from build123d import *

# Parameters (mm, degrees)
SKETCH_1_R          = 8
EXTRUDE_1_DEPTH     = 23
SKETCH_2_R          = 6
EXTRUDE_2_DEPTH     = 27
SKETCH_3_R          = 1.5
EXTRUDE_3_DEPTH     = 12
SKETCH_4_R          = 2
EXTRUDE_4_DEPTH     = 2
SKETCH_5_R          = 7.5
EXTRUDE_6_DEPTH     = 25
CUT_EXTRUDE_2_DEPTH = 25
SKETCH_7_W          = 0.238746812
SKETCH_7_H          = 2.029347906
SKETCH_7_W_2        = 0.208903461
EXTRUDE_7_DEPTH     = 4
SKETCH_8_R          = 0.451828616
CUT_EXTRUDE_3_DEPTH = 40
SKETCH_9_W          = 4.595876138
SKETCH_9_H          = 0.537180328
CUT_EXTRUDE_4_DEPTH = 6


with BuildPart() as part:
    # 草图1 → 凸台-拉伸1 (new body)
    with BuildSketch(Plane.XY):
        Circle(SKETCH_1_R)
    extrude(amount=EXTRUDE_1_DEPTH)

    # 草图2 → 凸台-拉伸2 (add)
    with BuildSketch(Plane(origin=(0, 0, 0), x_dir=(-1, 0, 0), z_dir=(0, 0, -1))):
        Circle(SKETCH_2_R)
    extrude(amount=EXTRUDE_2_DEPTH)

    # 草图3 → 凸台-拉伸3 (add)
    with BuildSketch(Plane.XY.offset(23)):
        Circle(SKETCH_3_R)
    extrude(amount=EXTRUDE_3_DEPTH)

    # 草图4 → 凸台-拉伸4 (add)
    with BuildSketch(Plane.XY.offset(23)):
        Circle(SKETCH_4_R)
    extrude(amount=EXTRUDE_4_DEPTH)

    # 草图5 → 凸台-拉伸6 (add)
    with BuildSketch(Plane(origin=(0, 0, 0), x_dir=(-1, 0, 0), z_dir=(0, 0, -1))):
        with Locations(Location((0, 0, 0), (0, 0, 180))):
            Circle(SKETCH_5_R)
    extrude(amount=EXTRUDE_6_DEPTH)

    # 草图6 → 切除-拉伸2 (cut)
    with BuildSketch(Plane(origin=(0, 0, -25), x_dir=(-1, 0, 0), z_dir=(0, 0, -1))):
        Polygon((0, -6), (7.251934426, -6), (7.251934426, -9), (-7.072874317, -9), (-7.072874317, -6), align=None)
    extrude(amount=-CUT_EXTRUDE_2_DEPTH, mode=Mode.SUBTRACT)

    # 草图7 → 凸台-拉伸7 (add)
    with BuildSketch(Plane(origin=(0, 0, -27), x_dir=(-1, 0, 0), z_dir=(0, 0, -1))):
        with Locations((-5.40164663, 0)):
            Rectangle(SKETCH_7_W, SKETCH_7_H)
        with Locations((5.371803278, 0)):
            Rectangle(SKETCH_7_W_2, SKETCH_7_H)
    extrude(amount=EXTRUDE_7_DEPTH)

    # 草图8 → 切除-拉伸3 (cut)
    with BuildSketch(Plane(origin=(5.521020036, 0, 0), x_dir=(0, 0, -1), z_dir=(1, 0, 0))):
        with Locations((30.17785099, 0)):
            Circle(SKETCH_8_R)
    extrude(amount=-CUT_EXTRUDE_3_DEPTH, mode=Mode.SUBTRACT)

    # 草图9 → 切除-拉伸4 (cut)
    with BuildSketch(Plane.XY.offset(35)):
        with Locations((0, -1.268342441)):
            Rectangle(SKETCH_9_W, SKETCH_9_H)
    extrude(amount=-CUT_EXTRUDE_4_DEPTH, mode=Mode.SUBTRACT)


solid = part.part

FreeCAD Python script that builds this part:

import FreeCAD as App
import Part
import Sketcher

V = App.Vector
Q = App.Units.Quantity


def add_polygon(sketch, points):
    """Adds a closed chain of lines whose ends are joined by coincident constraints."""
    first, n = sketch.GeometryCount, len(points)
    for a, b in zip(points, points[1:] + points[:1]):
        sketch.addGeometry(Part.LineSegment(App.Vector(*a, 0), App.Vector(*b, 0)), False)
    for i in range(n):
        sketch.addConstraint(Sketcher.Constraint("Coincident", first + i, 2, first + (i + 1) % n, 1))

doc = App.newDocument("Part")
body = doc.addObject("PartDesign::Body", "Body")

# Sketch on XY plane
sketch1 = doc.addObject("Sketcher::SketchObject", "Sketch")
body.addObject(sketch1)
sketch1.AttachmentSupport = (doc.XY_Plane, [""])
sketch1.MapMode = "FlatFace"
sketch1.addGeometry(Part.Circle(V(0, 0, 0), V(0, 0, 1), 8), False)
sketch1.addConstraint(Sketcher.Constraint("Coincident", 0, 3, -1, 1))
sketch1.addConstraint(Sketcher.Constraint("Diameter", 0, Q("16 mm")))
pad1 = doc.addObject("PartDesign::Pad", "Pad")
body.addObject(pad1)
pad1.Profile = sketch1
pad1.Length = 23

# Sketch on XY plane
sketch2 = doc.addObject("Sketcher::SketchObject", "Sketch001")
body.addObject(sketch2)
sketch2.AttachmentSupport = (doc.XY_Plane, [""])
sketch2.MapMode = "FlatFace"
sketch2.addGeometry(Part.Circle(V(0, 0, 0), V(0, 0, 1), 6), False)
sketch2.addConstraint(Sketcher.Constraint("Coincident", 0, 3, -1, 1))
sketch2.addConstraint(Sketcher.Constraint("Diameter", 0, Q("12 mm")))
pad2 = doc.addObject("PartDesign::Pad", "Pad001")
body.addObject(pad2)
pad2.Profile = sketch2
pad2.Length = 27
pad2.Reversed = True

# Sketch on XY plane
sketch3 = doc.addObject("Sketcher::SketchObject", "Sketch002")
body.addObject(sketch3)
sketch3.AttachmentSupport = (doc.XY_Plane, [""])
sketch3.MapMode = "FlatFace"
sketch3.AttachmentOffset = App.Placement(V(0, 0, 23), App.Rotation())
sketch3.addGeometry(Part.Circle(V(0, 0, 0), V(0, 0, 1), 1.5), False)
sketch3.addConstraint(Sketcher.Constraint("Coincident", 0, 3, -1, 1))
sketch3.addConstraint(Sketcher.Constraint("Diameter", 0, Q("3 mm")))
pad3 = doc.addObject("PartDesign::Pad", "Pad002")
body.addObject(pad3)
pad3.Profile = sketch3
pad3.Length = 12

# Sketch on XY plane
sketch4 = doc.addObject("Sketcher::SketchObject", "Sketch003")
body.addObject(sketch4)
sketch4.AttachmentSupport = (doc.XY_Plane, [""])
sketch4.MapMode = "FlatFace"
sketch4.AttachmentOffset = App.Placement(V(0, 0, 23), App.Rotation())
sketch4.addGeometry(Part.Circle(V(0, 0, 0), V(0, 0, 1), 2), False)
sketch4.addConstraint(Sketcher.Constraint("Coincident", 0, 3, -1, 1))
sketch4.addConstraint(Sketcher.Constraint("Diameter", 0, Q("4 mm")))
pad4 = doc.addObject("PartDesign::Pad", "Pad003")
body.addObject(pad4)
pad4.Profile = sketch4
pad4.Length = 2

# Sketch on XY plane
sketch5 = doc.addObject("Sketcher::SketchObject", "Sketch004")
body.addObject(sketch5)
sketch5.AttachmentSupport = (doc.XY_Plane, [""])
sketch5.MapMode = "FlatFace"
sketch5.addGeometry(Part.Circle(V(0, 0, 0), V(0, 0, 1), 7.5), False)
sketch5.addConstraint(Sketcher.Constraint("Coincident", 0, 3, -1, 1))
sketch5.addConstraint(Sketcher.Constraint("Diameter", 0, Q("15 mm")))
pad5 = doc.addObject("PartDesign::Pad", "Pad004")
body.addObject(pad5)
pad5.Profile = sketch5
pad5.Length = 25
pad5.Reversed = True

# Sketch on XY plane
sketch6 = doc.addObject("Sketcher::SketchObject", "Sketch005")
body.addObject(sketch6)
sketch6.AttachmentSupport = (doc.XY_Plane, [""])
sketch6.MapMode = "FlatFace"
sketch6.AttachmentOffset = App.Placement(V(0, 0, -25), App.Rotation())
add_polygon(sketch6, [(-7.251934, -6), (7.072874, -6), (7.072874, -9), (-7.251934, -9)])  # lines 0-3
sketch6.addConstraint(Sketcher.Constraint("Horizontal", 0))
sketch6.addConstraint(Sketcher.Constraint("Vertical", 1))
sketch6.addConstraint(Sketcher.Constraint("Horizontal", 2))
sketch6.addConstraint(Sketcher.Constraint("Vertical", 3))
sketch6.addConstraint(Sketcher.Constraint("DistanceY", 1, 2, 1, 1, Q("3 mm")))
sketch6.addConstraint(Sketcher.Constraint("DistanceY", 0, 2, -1, 1, Q("6 mm")))
sketch6.addConstraint(Sketcher.Constraint("DistanceX", 0, 1, 0, 2, Q("14.324809 mm")))
sketch6.addConstraint(Sketcher.Constraint("DistanceX", -1, 1, 0, 2, Q("7.072874 mm")))
pocket1 = doc.addObject("PartDesign::Pocket", "Pocket")
body.addObject(pocket1)
pocket1.Profile = sketch6
pocket1.Length = 25
pocket1.Reversed = True

# Sketch on XY plane
sketch7 = doc.addObject("Sketcher::SketchObject", "Sketch006")
body.addObject(sketch7)
sketch7.AttachmentSupport = (doc.XY_Plane, [""])
sketch7.MapMode = "FlatFace"
sketch7.AttachmentOffset = App.Placement(V(0, 0, -27), App.Rotation())
add_polygon(sketch7, [(5.52102, 1.014674), (5.52102, -1.014674), (5.282273, -1.014674), (5.282273, 1.014674)])  # lines 0-3
add_polygon(sketch7, [(-5.267352, 1.014674), (-5.267352, -1.014674), (-5.476255, -1.014674), (-5.476255, 1.014674)])  # lines 4-7
sketch7.addConstraint(Sketcher.Constraint("Vertical", 0))
sketch7.addConstraint(Sketcher.Constraint("Horizontal", 1))
sketch7.addConstraint(Sketcher.Constraint("Vertical", 2))
sketch7.addConstraint(Sketcher.Constraint("Horizontal", 3))
sketch7.addConstraint(Sketcher.Constraint("Vertical", 4))
sketch7.addConstraint(Sketcher.Constraint("Horizontal", 5))
sketch7.addConstraint(Sketcher.Constraint("Vertical", 6))
sketch7.addConstraint(Sketcher.Constraint("Horizontal", 7))
sketch7.addConstraint(Sketcher.Constraint("Horizontal", 1, 2, 4, 2))
sketch7.addConstraint(Sketcher.Constraint("Horizontal", 3, 2, 6, 2))
sketch7.addConstraint(Sketcher.Constraint("DistanceX", 1, 2, 1, 1, Q("0.238747 mm")))
sketch7.addConstraint(Sketcher.Constraint("DistanceX", 5, 2, 5, 1, Q("0.208903 mm")))
sketch7.addConstraint(Sketcher.Constraint("DistanceY", 0, 2, 0, 1, Q("2.029348 mm")))
sketch7.addConstraint(Sketcher.Constraint("DistanceX", -1, 1, 0, 2, Q("5.52102 mm")))
sketch7.addConstraint(Sketcher.Constraint("DistanceX", 4, 2, -1, 1, Q("5.267352 mm")))
sketch7.addConstraint(Sketcher.Constraint("DistanceY", 0, 2, -1, 1, Q("1.014674 mm")))
pad6 = doc.addObject("PartDesign::Pad", "Pad005")
body.addObject(pad6)
pad6.Profile = sketch7
pad6.Length = 4
pad6.Reversed = True

# Sketch on YZ plane
sketch8 = doc.addObject("Sketcher::SketchObject", "Sketch007")
body.addObject(sketch8)
sketch8.AttachmentSupport = (doc.YZ_Plane, [""])
sketch8.MapMode = "FlatFace"
sketch8.AttachmentOffset = App.Placement(V(0, 0, 5.52102), App.Rotation())
sketch8.addGeometry(Part.Circle(V(0, -30.177851, 0), V(0, 0, 1), 0.451829), False)
sketch8.addConstraint(Sketcher.Constraint("PointOnObject", 0, 3, -2))
sketch8.addConstraint(Sketcher.Constraint("Diameter", 0, Q("0.903657 mm")))
sketch8.addConstraint(Sketcher.Constraint("DistanceY", 0, 3, -1, 1, Q("30.177851 mm")))
pocket2 = doc.addObject("PartDesign::Pocket", "Pocket001")
body.addObject(pocket2)
pocket2.Profile = sketch8
pocket2.Length = 40

# Sketch on XY plane
sketch9 = doc.addObject("Sketcher::SketchObject", "Sketch008")
body.addObject(sketch9)
sketch9.AttachmentSupport = (doc.XY_Plane, [""])
sketch9.MapMode = "FlatFace"
sketch9.AttachmentOffset = App.Placement(V(0, 0, 35), App.Rotation())
add_polygon(sketch9, [(-2.297938, -0.999752), (-2.297938, -1.536933), (2.297938, -1.536933), (2.297938, -0.999752)])  # lines 0-3
sketch9.addConstraint(Sketcher.Constraint("Vertical", 0))
sketch9.addConstraint(Sketcher.Constraint("Horizontal", 1))
sketch9.addConstraint(Sketcher.Constraint("Vertical", 2))
sketch9.addConstraint(Sketcher.Constraint("Horizontal", 3))
sketch9.addConstraint(Sketcher.Constraint("DistanceY", 0, 2, 0, 1, Q("0.53718 mm")))
sketch9.addConstraint(Sketcher.Constraint("DistanceX", 1, 1, 1, 2, Q("4.595876 mm")))
sketch9.addConstraint(Sketcher.Constraint("DistanceX", 0, 2, -1, 1, Q("2.297938 mm")))
sketch9.addConstraint(Sketcher.Constraint("DistanceY", 0, 2, -1, 1, Q("1.536933 mm")))
pocket3 = doc.addObject("PartDesign::Pocket", "Pocket002")
body.addObject(pocket3)
pocket3.Profile = sketch9
pocket3.Length = 6

doc.recompute()
